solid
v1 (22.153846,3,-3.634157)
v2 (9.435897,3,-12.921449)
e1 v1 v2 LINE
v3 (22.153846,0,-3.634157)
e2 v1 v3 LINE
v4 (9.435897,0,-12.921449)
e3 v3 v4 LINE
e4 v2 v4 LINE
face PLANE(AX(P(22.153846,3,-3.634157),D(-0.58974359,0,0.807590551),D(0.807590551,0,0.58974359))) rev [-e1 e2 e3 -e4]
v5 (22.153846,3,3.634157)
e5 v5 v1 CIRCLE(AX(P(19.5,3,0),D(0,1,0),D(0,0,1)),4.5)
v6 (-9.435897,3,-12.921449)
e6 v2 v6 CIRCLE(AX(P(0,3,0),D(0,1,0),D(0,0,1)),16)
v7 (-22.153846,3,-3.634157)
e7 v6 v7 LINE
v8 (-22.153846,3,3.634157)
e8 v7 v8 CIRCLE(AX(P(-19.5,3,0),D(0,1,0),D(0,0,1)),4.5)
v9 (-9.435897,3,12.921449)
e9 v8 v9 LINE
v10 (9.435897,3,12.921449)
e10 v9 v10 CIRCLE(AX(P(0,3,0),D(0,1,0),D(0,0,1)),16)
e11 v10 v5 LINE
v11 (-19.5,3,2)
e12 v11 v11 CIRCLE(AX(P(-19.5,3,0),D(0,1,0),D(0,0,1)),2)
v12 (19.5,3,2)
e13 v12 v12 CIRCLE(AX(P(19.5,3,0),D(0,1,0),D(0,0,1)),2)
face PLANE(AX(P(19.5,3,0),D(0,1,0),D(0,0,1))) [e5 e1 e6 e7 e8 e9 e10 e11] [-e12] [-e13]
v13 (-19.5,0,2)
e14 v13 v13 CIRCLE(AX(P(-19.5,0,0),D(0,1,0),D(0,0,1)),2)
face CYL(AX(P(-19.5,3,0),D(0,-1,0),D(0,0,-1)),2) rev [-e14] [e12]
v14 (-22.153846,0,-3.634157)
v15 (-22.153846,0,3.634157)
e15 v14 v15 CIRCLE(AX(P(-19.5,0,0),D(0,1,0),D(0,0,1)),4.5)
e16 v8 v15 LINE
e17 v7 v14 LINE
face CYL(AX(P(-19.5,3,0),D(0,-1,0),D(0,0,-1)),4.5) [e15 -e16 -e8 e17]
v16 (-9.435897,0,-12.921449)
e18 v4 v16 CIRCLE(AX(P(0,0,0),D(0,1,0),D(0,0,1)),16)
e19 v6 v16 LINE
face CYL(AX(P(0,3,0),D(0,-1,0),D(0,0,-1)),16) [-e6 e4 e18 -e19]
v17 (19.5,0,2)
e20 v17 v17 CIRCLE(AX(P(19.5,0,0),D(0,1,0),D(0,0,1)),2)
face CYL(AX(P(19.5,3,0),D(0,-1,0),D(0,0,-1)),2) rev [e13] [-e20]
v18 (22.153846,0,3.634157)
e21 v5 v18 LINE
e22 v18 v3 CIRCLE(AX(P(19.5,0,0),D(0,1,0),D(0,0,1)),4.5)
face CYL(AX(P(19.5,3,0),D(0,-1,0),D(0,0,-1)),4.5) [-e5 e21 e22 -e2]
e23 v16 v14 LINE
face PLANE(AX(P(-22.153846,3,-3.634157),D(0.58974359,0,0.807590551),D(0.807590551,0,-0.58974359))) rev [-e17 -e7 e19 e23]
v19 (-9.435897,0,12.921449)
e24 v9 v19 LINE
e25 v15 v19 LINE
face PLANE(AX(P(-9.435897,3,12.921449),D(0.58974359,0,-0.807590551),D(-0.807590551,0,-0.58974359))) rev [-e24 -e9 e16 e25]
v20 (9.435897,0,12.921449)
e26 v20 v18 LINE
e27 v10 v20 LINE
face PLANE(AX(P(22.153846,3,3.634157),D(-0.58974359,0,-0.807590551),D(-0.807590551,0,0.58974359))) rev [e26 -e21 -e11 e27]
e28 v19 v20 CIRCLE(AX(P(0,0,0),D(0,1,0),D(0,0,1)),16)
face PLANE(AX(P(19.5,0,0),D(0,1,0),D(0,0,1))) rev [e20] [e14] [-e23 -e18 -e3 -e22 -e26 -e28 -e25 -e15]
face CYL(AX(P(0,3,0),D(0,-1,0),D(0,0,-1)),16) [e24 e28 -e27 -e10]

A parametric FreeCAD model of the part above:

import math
import FreeCAD as App
import Part
import Sketcher
Q = App.Units.Quantity

doc = App.newDocument("Part")
params = doc.addObject("Spreadsheet::Sheet", "Params")
for row, (alias, value) in enumerate([
    ("sketch1_diameter", "4 mm"),
    ("sketch1_radius", "16 mm"),
    ("sketch1_radius2", "4.5 mm"),
    ("pad1_length", "3 mm"),
], start=1):
    params.set(f"A{row}", alias)
    params.set(f"B{row}", "=" + value)
    params.setAlias(f"B{row}", alias)

body = doc.addObject("PartDesign::Body", "Body")

# Sketch on XZ plane
sketch1 = doc.addObject("Sketcher::SketchObject", "Sketch")
body.addObject(sketch1)
sketch1.AttachmentSupport = (doc.XZ_Plane, [""])
sketch1.MapMode = "FlatFace"
sketch1.addGeometry(Part.LineSegment(App.Vector(9.4, 12.9, 0), App.Vector(22.2, 3.6, 0)), False)
sketch1.addGeometry(Part.ArcOfCircle(Part.Circle(App.Vector(19.5, 0, 0), App.Vector(0, 0, 1), 4.5), math.radians(-54), math.radians(54)), False)
sketch1.addGeometry(Part.LineSegment(App.Vector(22.2, -3.6, 0), App.Vector(9.4, -12.9, 0)), False)
sketch1.addGeometry(Part.ArcOfCircle(Part.Circle(App.Vector(0, 0, 0), App.Vector(0, 0, 1), 16), math.radians(-126), math.radians(-54)), False)
sketch1.addGeometry(Part.LineSegment(App.Vector(-9.4, -12.9, 0), App.Vector(-22.2, -3.6, 0)), False)
sketch1.addGeometry(Part.ArcOfCircle(Part.Circle(App.Vector(-19.5, 0, 0), App.Vector(0, 0, 1), 4.5), math.radians(126), math.radians(234)), False)
sketch1.addGeometry(Part.LineSegment(App.Vector(-22.2, 3.6, 0), App.Vector(-9.4, 12.9, 0)), False)
sketch1.addGeometry(Part.ArcOfCircle(Part.Circle(App.Vector(0, 0, 0), App.Vector(0, 0, 1), 16), math.radians(54), math.radians(126)), False)
sketch1.addGeometry(Part.Circle(App.Vector(19.5, 0, 0), App.Vector(0, 0, 1), 2), False)
sketch1.addGeometry(Part.Circle(App.Vector(-19.5, 0, 0), App.Vector(0, 0, 1), 2), False)
sketch1.addConstraint(Sketcher.Constraint("Tangent", 0, 2, 1, 2))
sketch1.addConstraint(Sketcher.Constraint("Tangent", 1, 1, 2, 1))
sketch1.addConstraint(Sketcher.Constraint("Tangent", 2, 2, 3, 2))
sketch1.addConstraint(Sketcher.Constraint("Tangent", 3, 1, 4, 1))
sketch1.addConstraint(Sketcher.Constraint("Tangent", 4, 2, 5, 2))
sketch1.addConstraint(Sketcher.Constraint("Tangent", 5, 1, 6, 1))
sketch1.addConstraint(Sketcher.Constraint("Tangent", 6, 2, 7, 2))
sketch1.addConstraint(Sketcher.Constraint("Tangent", 7, 1, 0, 1))
sketch1.addConstraint(Sketcher.Constraint("Coincident", 3, 3, -1, 1))
sketch1.addConstraint(Sketcher.Constraint("Coincident", 7, 3, -1, 1))
sketch1.addConstraint(Sketcher.Constraint("Coincident", 8, 3, 1, 3))
sketch1.addConstraint(Sketcher.Constraint("Coincident", 9, 3, 5, 3))
sketch1.addConstraint(Sketcher.Constraint("Equal", 1, 5))
sketch1.addConstraint(Sketcher.Constraint("Equal", 3, 7))
sketch1.addConstraint(Sketcher.Constraint("Equal", 8, 9))
sketch1.addConstraint(Sketcher.Constraint("Symmetric", 1, 3, 5, 3, -1, 1))
sketch1.addConstraint(Sketcher.Constraint("PointOnObject", 1, 3, -1))
sketch1.addConstraint(Sketcher.Constraint("Diameter", 8, Q("4 mm")))
sketch1.addConstraint(Sketcher.Constraint("Radius", 3, Q("16 mm")))
sketch1.addConstraint(Sketcher.Constraint("Radius", 1, Q("4.5 mm")))
sketch1.addConstraint(Sketcher.Constraint("DistanceX", 5, 3, 1, 3, Q("39 mm")))
sketch1.setExpression("Constraints[17]", "Params.sketch1_diameter")
sketch1.setExpression("Constraints[18]", "Params.sketch1_radius")
sketch1.setExpression("Constraints[19]", "Params.sketch1_radius2")
pad1 = doc.addObject("PartDesign::Pad", "Pad")
body.addObject(pad1)
pad1.Profile = sketch1
pad1.setExpression("Length", "Params.pad1_length")
pad1.Reversed = True

doc.recompute()
